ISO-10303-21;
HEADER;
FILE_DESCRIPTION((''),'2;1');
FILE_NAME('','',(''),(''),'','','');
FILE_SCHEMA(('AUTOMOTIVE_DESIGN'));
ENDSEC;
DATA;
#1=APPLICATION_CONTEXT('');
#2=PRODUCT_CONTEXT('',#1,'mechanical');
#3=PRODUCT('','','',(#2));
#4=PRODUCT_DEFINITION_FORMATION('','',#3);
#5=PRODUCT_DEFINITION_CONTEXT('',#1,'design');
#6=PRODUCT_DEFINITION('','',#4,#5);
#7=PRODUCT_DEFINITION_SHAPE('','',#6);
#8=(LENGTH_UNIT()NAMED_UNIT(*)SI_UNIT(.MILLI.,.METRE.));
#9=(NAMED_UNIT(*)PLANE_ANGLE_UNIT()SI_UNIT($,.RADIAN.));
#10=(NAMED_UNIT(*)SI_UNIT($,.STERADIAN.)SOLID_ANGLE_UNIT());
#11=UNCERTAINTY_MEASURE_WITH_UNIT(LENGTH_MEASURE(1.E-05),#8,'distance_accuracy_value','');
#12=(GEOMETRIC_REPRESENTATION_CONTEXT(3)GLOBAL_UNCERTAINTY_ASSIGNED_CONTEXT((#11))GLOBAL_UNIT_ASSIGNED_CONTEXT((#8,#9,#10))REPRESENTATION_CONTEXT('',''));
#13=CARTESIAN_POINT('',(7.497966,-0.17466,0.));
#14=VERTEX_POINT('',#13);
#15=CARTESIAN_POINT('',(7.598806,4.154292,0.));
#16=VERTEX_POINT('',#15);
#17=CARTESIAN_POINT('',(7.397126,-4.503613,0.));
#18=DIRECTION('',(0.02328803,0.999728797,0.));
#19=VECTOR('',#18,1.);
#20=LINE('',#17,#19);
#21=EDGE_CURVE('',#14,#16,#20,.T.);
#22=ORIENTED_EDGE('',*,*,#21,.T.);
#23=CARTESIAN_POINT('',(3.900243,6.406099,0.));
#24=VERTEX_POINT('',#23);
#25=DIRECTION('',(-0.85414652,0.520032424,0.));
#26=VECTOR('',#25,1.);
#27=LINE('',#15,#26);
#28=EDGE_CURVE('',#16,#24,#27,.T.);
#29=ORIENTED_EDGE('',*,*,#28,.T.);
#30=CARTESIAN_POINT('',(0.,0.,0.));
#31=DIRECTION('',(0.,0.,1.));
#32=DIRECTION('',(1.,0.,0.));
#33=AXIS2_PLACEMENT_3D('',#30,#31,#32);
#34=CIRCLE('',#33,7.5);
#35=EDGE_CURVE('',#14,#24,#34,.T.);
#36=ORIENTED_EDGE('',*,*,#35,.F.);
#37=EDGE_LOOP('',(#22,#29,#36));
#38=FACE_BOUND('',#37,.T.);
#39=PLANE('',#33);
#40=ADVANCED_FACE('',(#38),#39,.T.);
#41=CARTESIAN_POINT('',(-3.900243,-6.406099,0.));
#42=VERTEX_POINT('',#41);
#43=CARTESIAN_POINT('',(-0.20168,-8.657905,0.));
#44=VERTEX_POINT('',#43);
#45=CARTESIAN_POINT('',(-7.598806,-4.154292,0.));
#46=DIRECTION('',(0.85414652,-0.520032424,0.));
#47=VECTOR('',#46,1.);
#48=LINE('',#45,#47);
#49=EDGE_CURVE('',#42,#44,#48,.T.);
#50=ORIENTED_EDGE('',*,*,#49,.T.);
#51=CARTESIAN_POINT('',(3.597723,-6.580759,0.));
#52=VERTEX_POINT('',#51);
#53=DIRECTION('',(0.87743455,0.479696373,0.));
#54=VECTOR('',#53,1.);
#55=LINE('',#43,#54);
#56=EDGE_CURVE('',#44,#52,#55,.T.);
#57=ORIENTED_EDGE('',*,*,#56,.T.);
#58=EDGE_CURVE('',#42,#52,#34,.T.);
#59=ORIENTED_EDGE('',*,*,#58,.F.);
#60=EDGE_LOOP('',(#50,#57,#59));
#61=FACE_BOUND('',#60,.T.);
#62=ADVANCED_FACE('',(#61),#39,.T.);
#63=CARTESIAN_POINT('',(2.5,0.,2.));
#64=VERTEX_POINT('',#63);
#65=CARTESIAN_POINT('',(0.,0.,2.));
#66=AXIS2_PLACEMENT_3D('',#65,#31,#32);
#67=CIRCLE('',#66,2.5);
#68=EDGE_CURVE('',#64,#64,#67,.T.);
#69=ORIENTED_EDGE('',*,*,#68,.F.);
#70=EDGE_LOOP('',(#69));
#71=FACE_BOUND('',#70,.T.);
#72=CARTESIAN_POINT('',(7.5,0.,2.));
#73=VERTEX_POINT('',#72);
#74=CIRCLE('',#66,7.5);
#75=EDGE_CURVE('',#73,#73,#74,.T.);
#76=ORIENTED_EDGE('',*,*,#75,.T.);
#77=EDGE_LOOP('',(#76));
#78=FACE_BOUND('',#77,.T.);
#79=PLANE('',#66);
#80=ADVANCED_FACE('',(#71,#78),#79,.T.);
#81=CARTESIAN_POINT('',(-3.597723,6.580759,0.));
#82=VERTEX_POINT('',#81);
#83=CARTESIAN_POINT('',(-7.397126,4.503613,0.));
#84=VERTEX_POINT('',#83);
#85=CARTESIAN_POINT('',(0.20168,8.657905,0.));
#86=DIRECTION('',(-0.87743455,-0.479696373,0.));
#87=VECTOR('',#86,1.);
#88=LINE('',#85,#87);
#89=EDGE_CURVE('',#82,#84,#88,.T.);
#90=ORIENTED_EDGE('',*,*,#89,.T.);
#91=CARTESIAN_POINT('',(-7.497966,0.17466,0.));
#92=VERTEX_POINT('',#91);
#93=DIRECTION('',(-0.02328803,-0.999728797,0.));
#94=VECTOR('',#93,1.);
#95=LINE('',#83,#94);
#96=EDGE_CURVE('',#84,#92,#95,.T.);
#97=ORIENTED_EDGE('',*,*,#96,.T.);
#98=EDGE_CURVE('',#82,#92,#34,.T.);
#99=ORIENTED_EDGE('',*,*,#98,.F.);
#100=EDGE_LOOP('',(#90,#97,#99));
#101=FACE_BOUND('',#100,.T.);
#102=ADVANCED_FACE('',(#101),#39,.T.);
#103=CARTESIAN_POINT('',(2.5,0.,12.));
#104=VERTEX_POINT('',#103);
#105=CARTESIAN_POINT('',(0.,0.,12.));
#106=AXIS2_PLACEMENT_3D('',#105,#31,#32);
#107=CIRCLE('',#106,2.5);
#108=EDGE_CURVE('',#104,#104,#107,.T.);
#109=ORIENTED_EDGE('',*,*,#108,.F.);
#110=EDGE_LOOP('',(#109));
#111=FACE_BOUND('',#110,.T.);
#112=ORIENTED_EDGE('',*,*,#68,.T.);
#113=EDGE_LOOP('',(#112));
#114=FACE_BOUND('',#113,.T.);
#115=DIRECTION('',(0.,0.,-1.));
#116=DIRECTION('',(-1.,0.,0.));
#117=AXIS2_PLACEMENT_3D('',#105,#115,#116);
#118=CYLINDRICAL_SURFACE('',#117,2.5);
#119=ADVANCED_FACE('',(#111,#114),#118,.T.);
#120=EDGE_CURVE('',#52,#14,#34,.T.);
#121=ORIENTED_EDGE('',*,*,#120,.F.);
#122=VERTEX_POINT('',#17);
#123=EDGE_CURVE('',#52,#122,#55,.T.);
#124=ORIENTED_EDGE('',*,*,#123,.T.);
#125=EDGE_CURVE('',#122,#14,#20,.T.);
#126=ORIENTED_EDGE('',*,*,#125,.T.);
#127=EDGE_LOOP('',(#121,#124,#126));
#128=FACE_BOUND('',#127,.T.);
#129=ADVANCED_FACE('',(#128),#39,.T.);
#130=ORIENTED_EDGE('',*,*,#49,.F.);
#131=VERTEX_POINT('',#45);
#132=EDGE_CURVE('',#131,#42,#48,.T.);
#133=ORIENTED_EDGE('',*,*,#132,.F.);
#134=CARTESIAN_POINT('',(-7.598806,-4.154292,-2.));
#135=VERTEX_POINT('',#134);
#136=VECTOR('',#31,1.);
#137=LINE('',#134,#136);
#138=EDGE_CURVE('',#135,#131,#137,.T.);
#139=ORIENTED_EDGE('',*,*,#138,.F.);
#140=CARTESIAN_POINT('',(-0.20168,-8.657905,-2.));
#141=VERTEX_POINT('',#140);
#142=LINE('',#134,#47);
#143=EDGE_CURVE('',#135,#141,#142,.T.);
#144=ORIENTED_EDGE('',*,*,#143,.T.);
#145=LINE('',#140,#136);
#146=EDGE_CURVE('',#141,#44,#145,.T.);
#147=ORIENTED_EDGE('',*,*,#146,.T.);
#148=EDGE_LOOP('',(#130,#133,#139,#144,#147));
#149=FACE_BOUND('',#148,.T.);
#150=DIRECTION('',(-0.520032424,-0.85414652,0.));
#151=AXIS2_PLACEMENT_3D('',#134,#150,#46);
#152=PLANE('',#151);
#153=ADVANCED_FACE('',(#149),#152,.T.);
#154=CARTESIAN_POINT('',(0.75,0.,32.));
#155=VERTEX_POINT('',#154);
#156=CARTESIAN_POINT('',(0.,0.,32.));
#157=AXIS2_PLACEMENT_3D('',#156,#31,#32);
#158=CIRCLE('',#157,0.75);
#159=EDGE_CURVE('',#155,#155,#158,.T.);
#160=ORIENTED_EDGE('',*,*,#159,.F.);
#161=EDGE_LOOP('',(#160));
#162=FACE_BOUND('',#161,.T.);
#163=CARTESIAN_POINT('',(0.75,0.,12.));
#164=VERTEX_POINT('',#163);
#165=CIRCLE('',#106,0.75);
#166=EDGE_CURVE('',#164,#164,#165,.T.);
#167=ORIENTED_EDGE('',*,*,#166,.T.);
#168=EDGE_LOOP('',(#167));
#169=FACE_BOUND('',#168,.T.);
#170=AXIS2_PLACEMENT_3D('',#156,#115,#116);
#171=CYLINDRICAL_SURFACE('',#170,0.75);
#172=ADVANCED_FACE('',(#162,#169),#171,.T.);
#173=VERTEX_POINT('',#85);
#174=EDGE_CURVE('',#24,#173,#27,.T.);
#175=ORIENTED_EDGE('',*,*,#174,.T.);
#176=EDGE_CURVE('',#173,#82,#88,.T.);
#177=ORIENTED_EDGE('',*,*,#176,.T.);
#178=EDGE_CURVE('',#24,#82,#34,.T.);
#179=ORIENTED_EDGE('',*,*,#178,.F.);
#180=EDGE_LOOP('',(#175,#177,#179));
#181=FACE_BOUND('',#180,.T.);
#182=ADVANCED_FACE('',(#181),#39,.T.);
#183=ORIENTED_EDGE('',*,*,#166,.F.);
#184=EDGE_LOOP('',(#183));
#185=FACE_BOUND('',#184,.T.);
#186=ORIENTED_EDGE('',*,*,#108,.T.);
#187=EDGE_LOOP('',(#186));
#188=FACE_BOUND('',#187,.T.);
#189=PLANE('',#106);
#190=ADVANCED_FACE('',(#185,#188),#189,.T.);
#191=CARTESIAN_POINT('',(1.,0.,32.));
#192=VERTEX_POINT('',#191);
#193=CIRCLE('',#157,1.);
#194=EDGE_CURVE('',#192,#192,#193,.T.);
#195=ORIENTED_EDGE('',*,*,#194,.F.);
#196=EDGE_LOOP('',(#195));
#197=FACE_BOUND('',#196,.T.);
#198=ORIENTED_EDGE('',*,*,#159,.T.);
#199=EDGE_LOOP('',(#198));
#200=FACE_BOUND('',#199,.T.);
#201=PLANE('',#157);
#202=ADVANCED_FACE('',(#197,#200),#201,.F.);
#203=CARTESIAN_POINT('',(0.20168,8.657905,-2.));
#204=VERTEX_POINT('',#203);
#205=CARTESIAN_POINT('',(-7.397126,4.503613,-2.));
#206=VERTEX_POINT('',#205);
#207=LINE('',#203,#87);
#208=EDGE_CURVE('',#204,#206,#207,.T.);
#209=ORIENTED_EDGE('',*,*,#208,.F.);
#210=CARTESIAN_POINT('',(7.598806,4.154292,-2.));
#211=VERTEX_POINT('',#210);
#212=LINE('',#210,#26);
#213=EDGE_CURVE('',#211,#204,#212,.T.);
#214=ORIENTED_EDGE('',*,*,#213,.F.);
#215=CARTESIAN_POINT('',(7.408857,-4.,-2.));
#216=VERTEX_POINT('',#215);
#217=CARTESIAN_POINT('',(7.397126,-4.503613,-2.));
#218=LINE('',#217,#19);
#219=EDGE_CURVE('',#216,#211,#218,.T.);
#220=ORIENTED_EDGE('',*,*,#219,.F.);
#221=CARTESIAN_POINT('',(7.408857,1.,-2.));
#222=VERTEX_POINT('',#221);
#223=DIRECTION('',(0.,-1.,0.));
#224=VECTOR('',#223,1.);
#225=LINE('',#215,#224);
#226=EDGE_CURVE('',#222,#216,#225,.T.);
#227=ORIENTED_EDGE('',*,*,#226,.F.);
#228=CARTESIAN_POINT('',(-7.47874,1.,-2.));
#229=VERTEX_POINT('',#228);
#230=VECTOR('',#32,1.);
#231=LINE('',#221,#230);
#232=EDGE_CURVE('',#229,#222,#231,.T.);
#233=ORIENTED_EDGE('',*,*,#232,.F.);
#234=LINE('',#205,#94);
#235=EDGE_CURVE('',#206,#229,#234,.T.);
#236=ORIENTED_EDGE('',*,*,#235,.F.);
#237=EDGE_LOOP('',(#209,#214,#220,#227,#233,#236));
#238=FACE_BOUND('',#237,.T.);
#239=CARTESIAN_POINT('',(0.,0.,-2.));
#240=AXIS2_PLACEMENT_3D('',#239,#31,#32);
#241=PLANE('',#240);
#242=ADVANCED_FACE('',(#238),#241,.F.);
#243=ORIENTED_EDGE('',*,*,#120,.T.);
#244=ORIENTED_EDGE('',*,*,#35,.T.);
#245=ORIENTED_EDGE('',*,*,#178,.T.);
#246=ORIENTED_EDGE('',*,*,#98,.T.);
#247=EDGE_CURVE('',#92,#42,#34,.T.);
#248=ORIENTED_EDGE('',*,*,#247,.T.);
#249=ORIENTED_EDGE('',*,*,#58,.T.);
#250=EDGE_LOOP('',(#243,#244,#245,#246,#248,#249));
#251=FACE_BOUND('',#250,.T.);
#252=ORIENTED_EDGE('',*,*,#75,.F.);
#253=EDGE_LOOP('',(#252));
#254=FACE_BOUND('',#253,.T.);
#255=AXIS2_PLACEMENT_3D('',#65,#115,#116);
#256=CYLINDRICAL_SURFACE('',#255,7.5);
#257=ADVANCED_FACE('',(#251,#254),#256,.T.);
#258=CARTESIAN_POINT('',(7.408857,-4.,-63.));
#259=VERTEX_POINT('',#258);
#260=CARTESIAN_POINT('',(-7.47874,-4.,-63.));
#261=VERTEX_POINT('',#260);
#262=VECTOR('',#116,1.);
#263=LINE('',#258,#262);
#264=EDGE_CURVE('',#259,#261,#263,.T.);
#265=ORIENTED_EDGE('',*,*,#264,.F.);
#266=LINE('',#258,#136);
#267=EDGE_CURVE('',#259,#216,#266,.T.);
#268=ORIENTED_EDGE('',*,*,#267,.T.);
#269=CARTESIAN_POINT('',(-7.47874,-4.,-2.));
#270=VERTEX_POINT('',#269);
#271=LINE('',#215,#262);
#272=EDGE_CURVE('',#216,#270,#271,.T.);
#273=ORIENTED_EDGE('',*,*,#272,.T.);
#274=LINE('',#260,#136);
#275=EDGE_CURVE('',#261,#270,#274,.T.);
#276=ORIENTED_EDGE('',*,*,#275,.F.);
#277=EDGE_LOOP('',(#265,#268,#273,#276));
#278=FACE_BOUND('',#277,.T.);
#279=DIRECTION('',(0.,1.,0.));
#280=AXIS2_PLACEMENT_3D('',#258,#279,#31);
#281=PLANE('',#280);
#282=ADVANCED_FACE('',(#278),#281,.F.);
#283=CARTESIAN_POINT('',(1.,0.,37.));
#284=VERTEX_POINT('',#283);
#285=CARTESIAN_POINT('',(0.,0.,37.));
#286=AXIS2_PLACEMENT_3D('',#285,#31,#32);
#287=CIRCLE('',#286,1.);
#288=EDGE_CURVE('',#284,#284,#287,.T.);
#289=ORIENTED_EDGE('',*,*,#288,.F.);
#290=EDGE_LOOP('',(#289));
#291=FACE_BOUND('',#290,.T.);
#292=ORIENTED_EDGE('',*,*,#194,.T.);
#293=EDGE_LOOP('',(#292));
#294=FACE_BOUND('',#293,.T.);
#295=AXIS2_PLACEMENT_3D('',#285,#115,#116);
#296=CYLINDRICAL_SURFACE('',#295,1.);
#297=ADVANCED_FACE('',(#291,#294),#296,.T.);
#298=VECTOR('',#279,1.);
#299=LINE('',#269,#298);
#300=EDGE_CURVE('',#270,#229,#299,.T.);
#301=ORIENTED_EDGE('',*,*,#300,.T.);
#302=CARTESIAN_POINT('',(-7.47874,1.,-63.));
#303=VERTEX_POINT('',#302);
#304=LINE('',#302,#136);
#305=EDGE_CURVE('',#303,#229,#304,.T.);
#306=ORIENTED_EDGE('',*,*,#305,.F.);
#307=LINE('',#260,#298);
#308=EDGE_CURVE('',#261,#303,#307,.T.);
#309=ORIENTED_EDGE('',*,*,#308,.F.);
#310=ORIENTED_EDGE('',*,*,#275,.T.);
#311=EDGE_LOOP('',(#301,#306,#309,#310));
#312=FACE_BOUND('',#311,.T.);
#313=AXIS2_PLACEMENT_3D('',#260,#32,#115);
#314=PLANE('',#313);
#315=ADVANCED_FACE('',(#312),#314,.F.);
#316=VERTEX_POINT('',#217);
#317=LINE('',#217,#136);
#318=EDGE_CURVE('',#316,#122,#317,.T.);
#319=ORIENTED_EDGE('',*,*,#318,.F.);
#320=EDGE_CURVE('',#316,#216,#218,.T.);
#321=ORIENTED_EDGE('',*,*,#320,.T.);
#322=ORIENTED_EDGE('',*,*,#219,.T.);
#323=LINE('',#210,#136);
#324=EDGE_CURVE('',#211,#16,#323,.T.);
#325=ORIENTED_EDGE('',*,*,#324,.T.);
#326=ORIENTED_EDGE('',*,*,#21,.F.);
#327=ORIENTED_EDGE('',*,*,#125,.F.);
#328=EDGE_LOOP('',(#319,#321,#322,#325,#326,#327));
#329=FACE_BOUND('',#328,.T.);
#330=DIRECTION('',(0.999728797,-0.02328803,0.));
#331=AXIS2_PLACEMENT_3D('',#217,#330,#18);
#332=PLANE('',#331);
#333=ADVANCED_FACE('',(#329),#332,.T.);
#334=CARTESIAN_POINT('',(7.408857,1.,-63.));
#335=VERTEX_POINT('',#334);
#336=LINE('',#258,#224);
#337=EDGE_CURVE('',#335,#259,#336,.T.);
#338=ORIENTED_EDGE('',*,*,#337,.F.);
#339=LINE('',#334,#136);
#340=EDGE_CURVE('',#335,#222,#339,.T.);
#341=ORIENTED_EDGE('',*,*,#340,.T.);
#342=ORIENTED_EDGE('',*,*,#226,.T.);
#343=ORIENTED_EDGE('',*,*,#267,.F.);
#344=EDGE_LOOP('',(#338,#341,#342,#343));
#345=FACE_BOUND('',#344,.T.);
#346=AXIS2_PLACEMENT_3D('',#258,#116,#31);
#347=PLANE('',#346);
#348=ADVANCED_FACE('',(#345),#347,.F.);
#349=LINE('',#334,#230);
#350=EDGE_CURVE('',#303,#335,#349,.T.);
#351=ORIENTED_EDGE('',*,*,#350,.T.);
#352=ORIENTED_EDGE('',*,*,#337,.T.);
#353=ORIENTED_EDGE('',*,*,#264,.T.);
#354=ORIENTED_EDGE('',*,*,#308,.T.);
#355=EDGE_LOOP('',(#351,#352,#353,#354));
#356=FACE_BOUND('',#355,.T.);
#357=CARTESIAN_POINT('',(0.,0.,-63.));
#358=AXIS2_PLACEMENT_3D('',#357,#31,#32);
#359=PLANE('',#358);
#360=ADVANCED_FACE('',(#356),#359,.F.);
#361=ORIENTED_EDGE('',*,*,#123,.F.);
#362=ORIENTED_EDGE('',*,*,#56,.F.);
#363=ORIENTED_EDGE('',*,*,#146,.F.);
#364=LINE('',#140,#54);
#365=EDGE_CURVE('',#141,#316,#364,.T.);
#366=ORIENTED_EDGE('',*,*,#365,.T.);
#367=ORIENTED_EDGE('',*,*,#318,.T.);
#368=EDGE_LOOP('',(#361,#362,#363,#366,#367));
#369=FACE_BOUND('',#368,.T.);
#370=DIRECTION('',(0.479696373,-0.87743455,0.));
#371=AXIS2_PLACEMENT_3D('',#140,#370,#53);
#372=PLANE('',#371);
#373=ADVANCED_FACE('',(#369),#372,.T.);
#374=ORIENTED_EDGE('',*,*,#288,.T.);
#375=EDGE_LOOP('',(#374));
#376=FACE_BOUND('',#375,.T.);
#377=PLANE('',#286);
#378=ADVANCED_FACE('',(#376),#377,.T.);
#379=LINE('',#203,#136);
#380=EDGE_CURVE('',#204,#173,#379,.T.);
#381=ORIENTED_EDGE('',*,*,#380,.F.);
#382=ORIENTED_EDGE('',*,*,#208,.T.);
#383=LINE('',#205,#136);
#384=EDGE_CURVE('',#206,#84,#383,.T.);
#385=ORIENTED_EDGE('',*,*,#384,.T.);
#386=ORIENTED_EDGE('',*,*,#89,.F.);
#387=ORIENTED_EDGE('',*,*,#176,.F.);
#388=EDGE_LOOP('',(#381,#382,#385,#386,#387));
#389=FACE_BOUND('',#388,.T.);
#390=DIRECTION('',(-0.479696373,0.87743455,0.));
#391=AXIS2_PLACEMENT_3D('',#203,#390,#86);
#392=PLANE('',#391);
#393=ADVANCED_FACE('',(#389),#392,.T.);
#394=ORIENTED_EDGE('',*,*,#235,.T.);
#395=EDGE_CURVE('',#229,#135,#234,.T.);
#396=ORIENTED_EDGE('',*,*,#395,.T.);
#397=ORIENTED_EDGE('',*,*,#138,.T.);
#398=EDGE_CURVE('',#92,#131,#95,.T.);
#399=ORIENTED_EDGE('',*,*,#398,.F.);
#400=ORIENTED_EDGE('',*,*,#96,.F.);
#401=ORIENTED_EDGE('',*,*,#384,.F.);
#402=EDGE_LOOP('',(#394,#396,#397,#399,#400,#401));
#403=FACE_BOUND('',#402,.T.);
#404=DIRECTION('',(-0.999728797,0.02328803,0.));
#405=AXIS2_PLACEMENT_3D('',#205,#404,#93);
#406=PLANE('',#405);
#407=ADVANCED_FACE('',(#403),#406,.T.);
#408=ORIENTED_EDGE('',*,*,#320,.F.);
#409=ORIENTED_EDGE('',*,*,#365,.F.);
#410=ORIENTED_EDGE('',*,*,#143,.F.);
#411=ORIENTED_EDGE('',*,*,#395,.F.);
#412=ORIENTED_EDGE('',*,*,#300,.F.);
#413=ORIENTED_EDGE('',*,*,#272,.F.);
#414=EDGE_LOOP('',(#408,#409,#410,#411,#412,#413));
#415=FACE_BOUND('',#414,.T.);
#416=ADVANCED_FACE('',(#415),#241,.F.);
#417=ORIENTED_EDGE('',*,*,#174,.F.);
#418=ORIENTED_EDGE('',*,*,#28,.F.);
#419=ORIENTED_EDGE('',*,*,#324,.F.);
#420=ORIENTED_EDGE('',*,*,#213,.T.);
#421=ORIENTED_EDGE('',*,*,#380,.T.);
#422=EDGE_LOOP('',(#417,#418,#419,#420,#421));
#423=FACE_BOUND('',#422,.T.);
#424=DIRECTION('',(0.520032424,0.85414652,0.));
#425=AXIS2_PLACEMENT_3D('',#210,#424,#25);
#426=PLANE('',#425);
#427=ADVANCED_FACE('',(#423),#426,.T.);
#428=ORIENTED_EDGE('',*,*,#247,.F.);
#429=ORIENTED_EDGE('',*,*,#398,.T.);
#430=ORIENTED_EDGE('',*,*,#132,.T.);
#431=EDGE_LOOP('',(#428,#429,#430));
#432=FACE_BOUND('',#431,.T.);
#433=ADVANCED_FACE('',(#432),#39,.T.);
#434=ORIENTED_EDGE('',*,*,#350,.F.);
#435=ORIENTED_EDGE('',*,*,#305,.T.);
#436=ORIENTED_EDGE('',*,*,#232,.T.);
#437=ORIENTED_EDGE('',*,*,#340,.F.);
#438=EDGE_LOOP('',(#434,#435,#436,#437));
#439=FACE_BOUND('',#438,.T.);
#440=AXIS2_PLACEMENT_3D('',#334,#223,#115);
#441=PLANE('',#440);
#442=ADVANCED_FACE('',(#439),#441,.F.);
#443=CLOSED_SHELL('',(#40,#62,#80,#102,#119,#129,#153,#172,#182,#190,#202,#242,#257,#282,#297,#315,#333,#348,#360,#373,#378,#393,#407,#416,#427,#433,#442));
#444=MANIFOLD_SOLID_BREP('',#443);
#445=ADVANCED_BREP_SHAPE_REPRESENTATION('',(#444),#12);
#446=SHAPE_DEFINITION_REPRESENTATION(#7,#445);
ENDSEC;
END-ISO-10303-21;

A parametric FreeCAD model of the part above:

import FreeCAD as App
import Part
import Sketcher
Q = App.Units.Quantity

doc = App.newDocument("Part")
body = doc.addObject("PartDesign::Body", "Body")

# Sketch on XY plane
sketch1 = body.newObject("Sketcher::SketchObject", "Sketch")
sketch1.AttachmentSupport = (doc.getObject("XY_Plane"), [""])
sketch1.MapMode = "FlatFace"
sketch1.addGeometry([
    Part.LineSegment(App.Vector(7.397126, -4.503613, 0), App.Vector(7.598806, 4.154292, 0)),  # 0
    Part.LineSegment(App.Vector(7.598806, 4.154292, 0), App.Vector(0.20168, 8.657905, 0)),  # 1
    Part.LineSegment(App.Vector(0.20168, 8.657905, 0), App.Vector(-7.397126, 4.503613, 0)),  # 2
    Part.LineSegment(App.Vector(-7.397126, 4.503613, 0), App.Vector(-7.598806, -4.154292, 0)),  # 3
    Part.LineSegment(App.Vector(-7.598806, -4.154292, 0), App.Vector(-0.20168, -8.657905, 0)),  # 4
    Part.LineSegment(App.Vector(-0.20168, -8.657905, 0), App.Vector(7.397126, -4.503613, 0)),  # 5
], False)
sketch1.addConstraint([
    Sketcher.Constraint("Coincident", 0, 2, 1, 1),
    Sketcher.Constraint("Coincident", 1, 2, 2, 1),
    Sketcher.Constraint("Coincident", 2, 2, 3, 1),
    Sketcher.Constraint("Coincident", 3, 2, 4, 1),
    Sketcher.Constraint("Coincident", 4, 2, 5, 1),
    Sketcher.Constraint("Coincident", 5, 2, 0, 1),
    Sketcher.Constraint("Symmetric", 0, 2, 3, 2, -1, 1),
    Sketcher.Constraint("Symmetric", 1, 2, 4, 2, -1, 1),
    Sketcher.Constraint("Symmetric", 2, 2, 5, 2, -1, 1),
    Sketcher.Constraint("Equal", 0, 1),
    Sketcher.Constraint("Equal", 1, 2),
    Sketcher.Constraint("DistanceX", -1, 1, 1, 2, Q("0.20168 mm")),
    Sketcher.Constraint("DistanceX", 2, 2, 0, 2, Q("14.995932 mm")),
    Sketcher.Constraint("DistanceY", 0, 2, 2, 2, Q("0.34932 mm")),
    Sketcher.Constraint("DistanceX", 3, 2, 2, 2, Q("0.20168 mm")),
])
pad1 = body.newObject("PartDesign::Pad", "Pad")
pad1.Profile = sketch1
pad1.Length = 2
pad1.Reversed = True

# Sketch on XY plane
sketch2 = body.newObject("Sketcher::SketchObject", "Sketch001")
sketch2.AttachmentSupport = (doc.getObject("XY_Plane"), [""])
sketch2.MapMode = "FlatFace"
sketch2.addGeometry(Part.Circle(App.Vector(0, 0, 0), App.Vector(0, 0, 1), 7.5), False)
sketch2.addConstraint([
    Sketcher.Constraint("Coincident", 0, 3, -1, 1),
    Sketcher.Constraint("Diameter", 0, Q("15 mm")),
])
pad2 = body.newObject("PartDesign::Pad", "Pad001")
pad2.Profile = sketch2
pad2.Length = 2

# Sketch on XY plane
sketch3 = body.newObject("Sketcher::SketchObject", "Sketch002")
sketch3.AttachmentSupport = (doc.getObject("XY_Plane"), [""])
sketch3.MapMode = "FlatFace"
sketch3.AttachmentOffset = App.Placement(App.Vector(0, 0, 2), App.Rotation())
sketch3.addGeometry(Part.Circle(App.Vector(0, 0, 0), App.Vector(0, 0, 1), 2.5), False)
sketch3.addConstraint([
    Sketcher.Constraint("Coincident", 0, 3, -1, 1),
    Sketcher.Constraint("Diameter", 0, Q("5 mm")),
])
pad3 = body.newObject("PartDesign::Pad", "Pad002")
pad3.Profile = sketch3
pad3.Length = 10

# Sketch on XY plane
sketch4 = body.newObject("Sketcher::SketchObject", "Sketch003")
sketch4.AttachmentSupport = (doc.getObject("XY_Plane"), [""])
sketch4.MapMode = "FlatFace"
sketch4.AttachmentOffset = App.Placement(App.Vector(0, 0, 12), App.Rotation())
sketch4.addGeometry(Part.Circle(App.Vector(0, 0, 0), App.Vector(0, 0, 1), 0.75), False)
sketch4.addConstraint([
    Sketcher.Constraint("Coincident", 0, 3, -1, 1),
    Sketcher.Constraint("Diameter", 0, Q("1.5 mm")),
])
pad4 = body.newObject("PartDesign::Pad", "Pad003")
pad4.Profile = sketch4
pad4.Length = 20

# Sketch on XY plane
sketch5 = body.newObject("Sketcher::SketchObject", "Sketch004")
sketch5.AttachmentSupport = (doc.getObject("XY_Plane"), [""])
sketch5.MapMode = "FlatFace"
sketch5.AttachmentOffset = App.Placement(App.Vector(0, 0, 32), App.Rotation())
sketch5.addGeometry(Part.Circle(App.Vector(0, 0, 0), App.Vector(0, 0, 1), 1), False)
sketch5.addConstraint([
    Sketcher.Constraint("Coincident", 0, 3, -1, 1),
    Sketcher.Constraint("Diameter", 0, Q("2 mm")),
])
pad5 = body.newObject("PartDesign::Pad", "Pad004")
pad5.Profile = sketch5
pad5.Length = 5

# Sketch on XY plane
sketch6 = body.newObject("Sketcher::SketchObject", "Sketch005")
sketch6.AttachmentSupport = (doc.getObject("XY_Plane"), [""])
sketch6.MapMode = "FlatFace"
sketch6.AttachmentOffset = App.Placement(App.Vector(0, 0, -2), App.Rotation())
sketch6.addGeometry([
    Part.LineSegment(App.Vector(7.408857, 1, 0), App.Vector(7.408857, -4, 0)),
    Part.LineSegment(App.Vector(7.408857, -4, 0), App.Vector(-7.47874, -4, 0)),
    Part.LineSegment(App.Vector(-7.47874, -4, 0), App.Vector(-7.47874, 1, 0)),
    Part.LineSegment(App.Vector(-7.47874, 1, 0), App.Vector(7.408857, 1, 0)),
], False)
sketch6.addConstraint([
    Sketcher.Constraint("Coincident", 0, 2, 1, 1),
    Sketcher.Constraint("Coincident", 1, 2, 2, 1),
    Sketcher.Constraint("Coincident", 2, 2, 3, 1),
    Sketcher.Constraint("Coincident", 3, 2, 0, 1),
    Sketcher.Constraint("Vertical", 0),
    Sketcher.Constraint("Horizontal", 1),
    Sketcher.Constraint("Vertical", 2),
    Sketcher.Constraint("Horizontal", 3),
    Sketcher.Constraint("DistanceY", 0, 2, 0, 1, Q("5 mm")),
    Sketcher.Constraint("DistanceY", 0, 2, -1, 1, Q("4 mm")),
    Sketcher.Constraint("DistanceX", 1, 2, 1, 1, Q("14.887597 mm")),
    Sketcher.Constraint("DistanceX", 1, 2, -1, 1, Q("7.47874 mm")),
])
pad6 = body.newObject("PartDesign::Pad", "Pad005")
pad6.Profile = sketch6
pad6.Length = 61
pad6.Reversed = True

doc.recompute()
